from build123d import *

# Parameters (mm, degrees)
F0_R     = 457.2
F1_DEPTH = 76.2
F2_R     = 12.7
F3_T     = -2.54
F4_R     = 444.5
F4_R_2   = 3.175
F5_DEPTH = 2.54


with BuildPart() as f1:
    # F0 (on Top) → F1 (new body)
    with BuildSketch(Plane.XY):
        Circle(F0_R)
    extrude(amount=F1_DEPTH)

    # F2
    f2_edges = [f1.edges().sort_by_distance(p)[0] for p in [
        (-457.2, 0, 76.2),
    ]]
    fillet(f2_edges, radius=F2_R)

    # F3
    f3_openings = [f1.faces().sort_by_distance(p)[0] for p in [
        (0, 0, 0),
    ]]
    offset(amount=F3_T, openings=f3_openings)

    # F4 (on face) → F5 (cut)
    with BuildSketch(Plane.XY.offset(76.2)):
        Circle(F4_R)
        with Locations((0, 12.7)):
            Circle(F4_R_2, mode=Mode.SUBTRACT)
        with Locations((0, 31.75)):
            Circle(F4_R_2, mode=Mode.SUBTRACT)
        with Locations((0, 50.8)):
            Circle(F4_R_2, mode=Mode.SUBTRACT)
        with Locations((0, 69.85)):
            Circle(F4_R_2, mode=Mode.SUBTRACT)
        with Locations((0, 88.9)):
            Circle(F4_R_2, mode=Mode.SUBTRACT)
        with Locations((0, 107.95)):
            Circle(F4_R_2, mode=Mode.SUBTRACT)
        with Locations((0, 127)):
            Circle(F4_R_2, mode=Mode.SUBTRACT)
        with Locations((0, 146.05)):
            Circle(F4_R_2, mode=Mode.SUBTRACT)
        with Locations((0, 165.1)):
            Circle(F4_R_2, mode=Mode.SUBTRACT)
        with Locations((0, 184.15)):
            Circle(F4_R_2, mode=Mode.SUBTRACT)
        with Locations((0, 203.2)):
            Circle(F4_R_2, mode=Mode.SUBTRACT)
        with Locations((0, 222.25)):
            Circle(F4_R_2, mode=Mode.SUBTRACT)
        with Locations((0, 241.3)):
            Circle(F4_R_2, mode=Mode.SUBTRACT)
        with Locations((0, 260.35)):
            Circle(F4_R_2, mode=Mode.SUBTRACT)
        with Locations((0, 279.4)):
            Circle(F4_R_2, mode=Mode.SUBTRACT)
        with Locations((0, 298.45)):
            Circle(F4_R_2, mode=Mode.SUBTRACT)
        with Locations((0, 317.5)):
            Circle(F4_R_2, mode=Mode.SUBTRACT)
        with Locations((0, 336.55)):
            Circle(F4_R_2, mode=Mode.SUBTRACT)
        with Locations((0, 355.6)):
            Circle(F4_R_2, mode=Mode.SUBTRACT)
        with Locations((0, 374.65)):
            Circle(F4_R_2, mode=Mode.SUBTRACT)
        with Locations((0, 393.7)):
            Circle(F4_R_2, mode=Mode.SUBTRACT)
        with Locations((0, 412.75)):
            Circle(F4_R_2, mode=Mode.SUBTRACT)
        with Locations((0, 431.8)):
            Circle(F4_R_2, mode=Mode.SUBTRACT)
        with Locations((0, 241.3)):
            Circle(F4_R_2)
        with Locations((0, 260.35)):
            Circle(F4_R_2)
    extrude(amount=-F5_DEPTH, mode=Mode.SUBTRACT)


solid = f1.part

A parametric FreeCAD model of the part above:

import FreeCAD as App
import Part
import Sketcher

V = App.Vector
Q = App.Units.Quantity


def edges_at(feature, points):
    """Names of the edges that pass closest to the given points."""
    edges = feature.Shape.Edges
    near = lambda p: min(range(len(edges)), key=lambda i: edges[i].distToShape(Part.Vertex(*p))[0])
    return sorted({f"Edge{near(p) + 1}" for p in points})


def faces_at(feature, points):
    """Names of the faces that lie closest to the given points."""
    faces = feature.Shape.Faces
    near = lambda p: min(range(len(faces)), key=lambda i: faces[i].distToShape(Part.Vertex(*p))[0])
    return sorted({f"Face{near(p) + 1}" for p in points})

doc = App.newDocument("Part")
body = doc.addObject("PartDesign::Body", "Body")
body.AllowCompound = True

# Sketch on XY plane
sketch1 = body.newObject("Sketcher::SketchObject", "Sketch")
sketch1.AttachmentSupport = (doc.getObject("XY_Plane"), [""])
sketch1.MapMode = "FlatFace"
sketch1.addGeometry(Part.Circle(V(0, 0, 0), V(0, 0, 1), 457), False)
sketch1.addConstraint(Sketcher.Constraint("Coincident", 0, 3, -1, 1))
sketch1.addConstraint(Sketcher.Constraint("Diameter", 0, Q("36 in")))
pad1 = body.newObject("PartDesign::Pad", "Pad")
pad1.Profile = sketch1
pad1.Length = Q("3 in")
doc.recompute()

fillet = body.newObject("PartDesign::Fillet", "Fillet")
fillet.Base = (pad1, edges_at(pad1, [(-457.2, 0, 76.2)]))
fillet.Radius = Q("0.5 in")
doc.recompute()

thickness = body.newObject("PartDesign::Thickness", "Thickness")
thickness.Base = (fillet, faces_at(fillet, [(0, 0, 0)]))
thickness.Value = Q("0.1 in")
thickness.Reversed = True
thickness.Join = "Arc"

# Sketch on XY plane
sketch2 = body.newObject("Sketcher::SketchObject", "Sketch001")
sketch2.AttachmentSupport = (doc.getObject("XY_Plane"), [""])
sketch2.MapMode = "FlatFace"
sketch2.AttachmentOffset = App.Placement(V(0, 0, 3 * 25.4), App.Rotation())
sketch2.addGeometry(Part.Circle(V(0, 0, 0), V(0, 0, 1), 444.5), False)
sketch2.addGeometry(Part.Circle(V(0, 12.7, 0), V(0, 0, 1), 3.2), False)
sketch2.addGeometry(Part.Circle(V(0, 31.8, 0), V(0, 0, 1), 3.2), False)
sketch2.addGeometry(Part.Circle(V(0, 50.8, 0), V(0, 0, 1), 3.2), False)
sketch2.addGeometry(Part.Circle(V(0, 69.8, 0), V(0, 0, 1), 3.2), False)
sketch2.addGeometry(Part.Circle(V(0, 88.9, 0), V(0, 0, 1), 3.2), False)
sketch2.addGeometry(Part.Circle(V(0, 108, 0), V(0, 0, 1), 3.2), False)
sketch2.addGeometry(Part.Circle(V(0, 127, 0), V(0, 0, 1), 3.2), False)
sketch2.addGeometry(Part.Circle(V(0, 146.1, 0), V(0, 0, 1), 3.2), False)
sketch2.addGeometry(Part.Circle(V(0, 165.1, 0), V(0, 0, 1), 3.2), False)
sketch2.addGeometry(Part.Circle(V(0, 184.2, 0), V(0, 0, 1), 3.2), False)
sketch2.addGeometry(Part.Circle(V(0, 203.2, 0), V(0, 0, 1), 3.2), False)
sketch2.addGeometry(Part.Circle(V(0, 222.2, 0), V(0, 0, 1), 3.2), False)
sketch2.addGeometry(Part.Circle(V(0, 279.4, 0), V(0, 0, 1), 3.2), False)
sketch2.addGeometry(Part.Circle(V(0, 298.4, 0), V(0, 0, 1), 3.2), False)
sketch2.addGeometry(Part.Circle(V(0, 317.5, 0), V(0, 0, 1), 3.2), False)
sketch2.addGeometry(Part.Circle(V(0, 336.6, 0), V(0, 0, 1), 3.2), False)
sketch2.addGeometry(Part.Circle(V(0, 355.6, 0), V(0, 0, 1), 3.2), False)
sketch2.addGeometry(Part.Circle(V(0, 374.6, 0), V(0, 0, 1), 3.2), False)
sketch2.addGeometry(Part.Circle(V(0, 393.7, 0), V(0, 0, 1), 3.2), False)
sketch2.addGeometry(Part.Circle(V(0, 412.8, 0), V(0, 0, 1), 3.2), False)
sketch2.addGeometry(Part.Circle(V(0, 431.8, 0), V(0, 0, 1), 3.2), False)
sketch2.addConstraint(Sketcher.Constraint("Coincident", 0, 3, -1, 1))
sketch2.addConstraint(Sketcher.Constraint("Equal", 1, 2))
sketch2.addConstraint(Sketcher.Constraint("Equal", 2, 3))
sketch2.addConstraint(Sketcher.Constraint("Equal", 3, 4))
sketch2.addConstraint(Sketcher.Constraint("Equal", 4, 5))
sketch2.addConstraint(Sketcher.Constraint("Equal", 5, 6))
sketch2.addConstraint(Sketcher.Constraint("Equal", 6, 7))
sketch2.addConstraint(Sketcher.Constraint("Equal", 7, 8))
sketch2.addConstraint(Sketcher.Constraint("Equal", 8, 9))
sketch2.addConstraint(Sketcher.Constraint("Equal", 9, 10))
sketch2.addConstraint(Sketcher.Constraint("Equal", 10, 11))
sketch2.addConstraint(Sketcher.Constraint("Equal", 11, 12))
sketch2.addConstraint(Sketcher.Constraint("Equal", 12, 13))
sketch2.addConstraint(Sketcher.Constraint("Equal", 13, 14))
sketch2.addConstraint(Sketcher.Constraint("Equal", 14, 15))
sketch2.addConstraint(Sketcher.Constraint("Equal", 15, 16))
sketch2.addConstraint(Sketcher.Constraint("Equal", 16, 17))
sketch2.addConstraint(Sketcher.Constraint("Equal", 17, 18))
sketch2.addConstraint(Sketcher.Constraint("Equal", 18, 19))
sketch2.addConstraint(Sketcher.Constraint("Equal", 19, 20))
sketch2.addConstraint(Sketcher.Constraint("Equal", 20, 21))
sketch2.addConstraint(Sketcher.Constraint("PointOnObject", 1, 3, -2))
sketch2.addConstraint(Sketcher.Constraint("PointOnObject", 2, 3, -2))
sketch2.addConstraint(Sketcher.Constraint("PointOnObject", 3, 3, -2))
sketch2.addConstraint(Sketcher.Constraint("PointOnObject", 4, 3, -2))
sketch2.addConstraint(Sketcher.Constraint("PointOnObject", 5, 3, -2))
sketch2.addConstraint(Sketcher.Constraint("PointOnObject", 6, 3, -2))
sketch2.addConstraint(Sketcher.Constraint("PointOnObject", 7, 3, -2))
sketch2.addConstraint(Sketcher.Constraint("PointOnObject", 8, 3, -2))
sketch2.addConstraint(Sketcher.Constraint("PointOnObject", 9, 3, -2))
sketch2.addConstraint(Sketcher.Constraint("PointOnObject", 10, 3, -2))
sketch2.addConstraint(Sketcher.Constraint("PointOnObject", 11, 3, -2))
sketch2.addConstraint(Sketcher.Constraint("PointOnObject", 12, 3, -2))
sketch2.addConstraint(Sketcher.Constraint("PointOnObject", 13, 3, -2))
sketch2.addConstraint(Sketcher.Constraint("PointOnObject", 14, 3, -2))
sketch2.addConstraint(Sketcher.Constraint("PointOnObject", 15, 3, -2))
sketch2.addConstraint(Sketcher.Constraint("PointOnObject", 16, 3, -2))
sketch2.addConstraint(Sketcher.Constraint("PointOnObject", 17, 3, -2))
sketch2.addConstraint(Sketcher.Constraint("PointOnObject", 18, 3, -2))
sketch2.addConstraint(Sketcher.Constraint("PointOnObject", 19, 3, -2))
sketch2.addConstraint(Sketcher.Constraint("PointOnObject", 20, 3, -2))
sketch2.addConstraint(Sketcher.Constraint("PointOnObject", 21, 3, -2))
sketch2.addConstraint(Sketcher.Constraint("Diameter", 0, Q("35 in")))
sketch2.addConstraint(Sketcher.Constraint("Diameter", 1, Q("0.25 in")))
sketch2.addConstraint(Sketcher.Constraint("DistanceY", -1, 1, 3, 3, Q("2 in")))
sketch2.addConstraint(Sketcher.Constraint("DistanceY", -1, 1, 7, 3, Q("5 in")))
sketch2.addConstraint(Sketcher.Constraint("DistanceY", -1, 1, 11, 3, Q("8 in")))
sketch2.addConstraint(Sketcher.Constraint("DistanceY", -1, 1, 13, 3, Q("11 in")))
sketch2.addConstraint(Sketcher.Constraint("DistanceY", -1, 1, 17, 3, Q("14 in")))
sketch2.addConstraint(Sketcher.Constraint("DistanceY", -1, 1, 21, 3, Q("17 in")))
sketch2.addConstraint(Sketcher.Constraint("DistanceY", 1, 3, 5, 3, Q("3 in")))
sketch2.addConstraint(Sketcher.Constraint("DistanceY", 2, 3, 6, 3, Q("3 in")))
sketch2.addConstraint(Sketcher.Constraint("DistanceY", 4, 3, 8, 3, Q("3 in")))
sketch2.addConstraint(Sketcher.Constraint("DistanceY", 5, 3, 9, 3, Q("3 in")))
sketch2.addConstraint(Sketcher.Constraint("DistanceY", 6, 3, 10, 3, Q("3 in")))
sketch2.addConstraint(Sketcher.Constraint("DistanceY", 8, 3, 12, 3, Q("3 in")))
sketch2.addConstraint(Sketcher.Constraint("DistanceY", 12, 3, 14, 3, Q("3 in")))
sketch2.addConstraint(Sketcher.Constraint("DistanceY", 14, 3, 18, 3, Q("3 in")))
sketch2.addConstraint(Sketcher.Constraint("DistanceY", 15, 3, 19, 3, Q("3 in")))
sketch2.addConstraint(Sketcher.Constraint("DistanceY", 16, 3, 20, 3, Q("3 in")))
sketch2.addConstraint(Sketcher.Constraint("DistanceY", -1, 1, 1, 3, Q("0.5 in")))
sketch2.addConstraint(Sketcher.Constraint("DistanceY", -1, 1, 15, 3, Q("12.5 in")))
sketch2.addConstraint(Sketcher.Constraint("DistanceY", 2, 3, 4, 3, Q("1.5 in")))
sketch2.addConstraint(Sketcher.Constraint("DistanceY", 14, 3, 16, 3, Q("1.5 in")))
sketch2.addConstraint(Sketcher.Constraint("DistanceY", -1, 1, 2, 3, Q("1.25 in")))
pocket1 = body.newObject("PartDesign::Pocket", "Pocket")
pocket1.Profile = sketch2
pocket1.Length = Q("0.1 in")

doc.recompute()
